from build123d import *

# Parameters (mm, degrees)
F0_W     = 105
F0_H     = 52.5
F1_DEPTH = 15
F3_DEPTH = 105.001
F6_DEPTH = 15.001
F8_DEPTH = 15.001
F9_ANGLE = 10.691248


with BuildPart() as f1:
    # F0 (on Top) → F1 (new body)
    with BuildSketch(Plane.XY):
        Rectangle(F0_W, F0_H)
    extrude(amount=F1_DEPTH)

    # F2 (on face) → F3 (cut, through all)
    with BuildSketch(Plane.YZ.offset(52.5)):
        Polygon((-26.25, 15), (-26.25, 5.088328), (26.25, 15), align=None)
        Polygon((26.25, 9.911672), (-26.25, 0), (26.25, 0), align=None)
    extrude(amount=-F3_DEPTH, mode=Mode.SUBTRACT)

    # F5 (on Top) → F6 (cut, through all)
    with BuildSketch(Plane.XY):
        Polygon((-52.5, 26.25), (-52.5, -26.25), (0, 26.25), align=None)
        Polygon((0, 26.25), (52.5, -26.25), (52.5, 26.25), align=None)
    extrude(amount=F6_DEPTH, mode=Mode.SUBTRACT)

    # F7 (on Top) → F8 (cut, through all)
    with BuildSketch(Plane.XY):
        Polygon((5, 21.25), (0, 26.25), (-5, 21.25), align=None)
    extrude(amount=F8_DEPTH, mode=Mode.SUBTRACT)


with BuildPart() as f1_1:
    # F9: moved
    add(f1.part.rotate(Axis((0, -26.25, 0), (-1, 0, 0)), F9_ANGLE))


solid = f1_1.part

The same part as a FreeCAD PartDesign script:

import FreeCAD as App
import Part
import Sketcher
Q = App.Units.Quantity


def add_polygon(sketch, points):
    """Adds a closed chain of lines whose ends are joined by coincident constraints."""
    first, n = sketch.GeometryCount, len(points)
    for a, b in zip(points, points[1:] + points[:1]):
        sketch.addGeometry(Part.LineSegment(App.Vector(*a, 0), App.Vector(*b, 0)), False)
    for i in range(n):
        sketch.addConstraint(Sketcher.Constraint("Coincident", first + i, 2, first + (i + 1) % n, 1))

doc = App.newDocument("Part")
body = doc.addObject("PartDesign::Body", "Body")

# Sketch on XY plane
sketch1 = body.newObject("Sketcher::SketchObject", "Sketch")
sketch1.AttachmentSupport = (doc.getObject("XY_Plane"), [""])
sketch1.MapMode = "FlatFace"
add_polygon(sketch1, [(-52, 26), (-52, -26), (52, -26), (52, 26)])  # lines 0-3
sketch1.addConstraint([
    Sketcher.Constraint("Vertical", 0),
    Sketcher.Constraint("Horizontal", 1),
    Sketcher.Constraint("Vertical", 2),
    Sketcher.Constraint("Horizontal", 3),
    Sketcher.Constraint("Symmetric", 0, 2, 2, 2, -1, 1),
    Sketcher.Constraint("DistanceX", 1, 1, 1, 2, Q("105 mm")),
    Sketcher.Constraint("DistanceY", 0, 2, 0, 1, Q("52.5 mm")),
])
pad1 = body.newObject("PartDesign::Pad", "Pad")
pad1.Profile = sketch1
pad1.Length = 15

# Sketch on YZ plane
sketch2 = body.newObject("Sketcher::SketchObject", "Sketch001")
sketch2.AttachmentSupport = (doc.getObject("YZ_Plane"), [""])
sketch2.MapMode = "FlatFace"
sketch2.AttachmentOffset = App.Placement(App.Vector(0, 0, 52.5), App.Rotation())
add_polygon(sketch2, [(-26, 15), (-26, 5), (26, 15)])  # lines 0-2
add_polygon(sketch2, [(26, 10), (-26, 0), (26, 0)])  # lines 3-5
sketch2.addConstraint([
    Sketcher.Constraint("Vertical", 0),
    Sketcher.Constraint("Horizontal", 2),
    Sketcher.Constraint("Horizontal", 4),
    Sketcher.Constraint("Vertical", 5),
    Sketcher.Constraint("Symmetric", 3, 2, 4, 2, -1, 1),
    Sketcher.Constraint("Parallel", 1, 3),
    Sketcher.Constraint("Vertical", 2, 2, 3, 2),
    Sketcher.Constraint("Vertical", 1, 2, 4, 2),
    Sketcher.Constraint("DistanceX", 2, 2, 2, 1, Q("52.5 mm")),
    Sketcher.Constraint("DistanceY", -1, 1, 1, 2, Q("15 mm")),
    Sketcher.Constraint("DistanceY", 0, 2, 0, 1, Q("9.911672 mm")),
])
pocket1 = body.newObject("PartDesign::Pocket", "Pocket")
pocket1.Profile = sketch2
pocket1.Type = "ThroughAll"

# Sketch on XY plane
sketch3 = body.newObject("Sketcher::SketchObject", "Sketch002")
sketch3.AttachmentSupport = (doc.getObject("XY_Plane"), [""])
sketch3.MapMode = "FlatFace"
add_polygon(sketch3, [(-52, 26), (-52, -26), (0, 26)])  # lines 0-2
add_polygon(sketch3, [(0, 26), (52, -26), (52, 26)])  # lines 3-5
sketch3.addConstraint([
    Sketcher.Constraint("Vertical", 0),
    Sketcher.Constraint("Horizontal", 2),
    Sketcher.Constraint("Vertical", 4),
    Sketcher.Constraint("Horizontal", 5),
    Sketcher.Constraint("Coincident", 5, 2, 1, 2),
    Sketcher.Constraint("Symmetric", 2, 2, 3, 2, -1, 1),
    Sketcher.Constraint("PointOnObject", 1, 2, -2),
    Sketcher.Constraint("Perpendicular", 1, 3),
    Sketcher.Constraint("Horizontal", 0, 2, 3, 2),
    Sketcher.Constraint("DistanceX", 2, 2, 2, 1, Q("52.5 mm")),
])
pocket2 = body.newObject("PartDesign::Pocket", "Pocket001")
pocket2.Profile = sketch3
pocket2.Type = "ThroughAll"
pocket2.Reversed = True

# Sketch on XY plane
sketch4 = body.newObject("Sketcher::SketchObject", "Sketch003")
sketch4.AttachmentSupport = (doc.getObject("XY_Plane"), [""])
sketch4.MapMode = "FlatFace"
add_polygon(sketch4, [(5, 21), (0, 26), (-5, 21)])  # lines 0-2
sketch4.addConstraint([
    Sketcher.Constraint("Horizontal", 2),
    Sketcher.Constraint("PointOnObject", 0, 2, -2),
    Sketcher.Constraint("Perpendicular", 0, 1),
    Sketcher.Constraint("Equal", 0, 1),
    Sketcher.Constraint("DistanceX", 2, 1, 2, 2, Q("10 mm")),
    Sketcher.Constraint("DistanceY", -1, 1, 0, 2, Q("26.25 mm")),
])
pocket3 = body.newObject("PartDesign::Pocket", "Pocket002")
pocket3.Profile = sketch4
pocket3.Type = "ThroughAll"
pocket3.Reversed = True
body2 = doc.addObject("PartDesign::Body", "Body001")
doc.recompute()

body.Placement = App.Placement(App.Vector(0, -0.45567, -4.869809), App.Rotation(App.Vector(-1, 0, 0), 10.691248))
boolean = body2.newObject("PartDesign::Boolean", "Boolean")
boolean.Type = "Fuse"
boolean.addObjects([body])

doc.recompute()
